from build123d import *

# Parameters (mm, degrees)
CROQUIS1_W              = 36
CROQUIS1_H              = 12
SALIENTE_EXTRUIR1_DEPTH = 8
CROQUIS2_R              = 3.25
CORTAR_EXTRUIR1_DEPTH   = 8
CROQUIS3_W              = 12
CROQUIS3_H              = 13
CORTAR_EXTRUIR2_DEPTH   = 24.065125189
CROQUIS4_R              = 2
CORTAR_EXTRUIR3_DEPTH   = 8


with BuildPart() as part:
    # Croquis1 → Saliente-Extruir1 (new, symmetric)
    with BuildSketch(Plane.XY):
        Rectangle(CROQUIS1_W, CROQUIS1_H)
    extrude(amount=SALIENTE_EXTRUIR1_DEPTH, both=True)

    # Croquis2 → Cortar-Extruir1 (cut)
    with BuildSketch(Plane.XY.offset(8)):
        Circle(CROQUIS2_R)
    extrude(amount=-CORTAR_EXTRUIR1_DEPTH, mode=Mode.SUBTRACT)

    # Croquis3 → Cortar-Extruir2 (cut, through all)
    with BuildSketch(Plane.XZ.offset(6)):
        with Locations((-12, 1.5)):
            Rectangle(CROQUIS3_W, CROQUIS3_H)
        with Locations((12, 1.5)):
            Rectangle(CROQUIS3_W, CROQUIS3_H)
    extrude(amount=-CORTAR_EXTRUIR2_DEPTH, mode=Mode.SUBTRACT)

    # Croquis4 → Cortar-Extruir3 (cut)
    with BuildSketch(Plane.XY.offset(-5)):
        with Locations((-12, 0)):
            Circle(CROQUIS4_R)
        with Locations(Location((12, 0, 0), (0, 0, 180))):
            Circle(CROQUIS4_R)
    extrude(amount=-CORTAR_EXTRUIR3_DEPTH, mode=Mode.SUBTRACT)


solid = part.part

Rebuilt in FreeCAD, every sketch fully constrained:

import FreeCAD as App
import Part
import Sketcher
from FreeCAD import Vector


def add_polygon(sketch, points):
    """Adds a closed chain of lines whose ends are joined by coincident constraints."""
    first, n = sketch.GeometryCount, len(points)
    for a, b in zip(points, points[1:] + points[:1]):
        sketch.addGeometry(Part.LineSegment(App.Vector(*a, 0), App.Vector(*b, 0)), False)
    for i in range(n):
        sketch.addConstraint(Sketcher.Constraint("Coincident", first + i, 2, first + (i + 1) % n, 1))

doc = App.newDocument("Part")
body = doc.addObject("PartDesign::Body", "Body")

# Sketch on XY plane
sketch1 = body.newObject("Sketcher::SketchObject", "Sketch")
sketch1.AttachmentSupport = (doc.getObject("XY_Plane"), [""])
sketch1.MapMode = "FlatFace"
add_polygon(sketch1, [(-18, 6), (-18, -6), (18, -6), (18, 6)])  # lines 0-3
sketch1.addConstraint([
    Sketcher.Constraint("Vertical", 0),
    Sketcher.Constraint("Horizontal", 1),
    Sketcher.Constraint("Vertical", 2),
    Sketcher.Constraint("Horizontal", 3),
    Sketcher.Constraint("Symmetric", 0, 2, 2, 2, -1, 1),
    Sketcher.Constraint("DistanceX", 1, 1, 1, 2, 36.0),
    Sketcher.Constraint("DistanceY", 0, 2, 0, 1, 12.0),
])
pad1 = body.newObject("PartDesign::Pad", "Pad")
pad1.Profile = sketch1
pad1.Length = 16
pad1.Midplane = True

# Sketch on XY plane
sketch2 = body.newObject("Sketcher::SketchObject", "Sketch001")
sketch2.AttachmentSupport = (doc.getObject("XY_Plane"), [""])
sketch2.MapMode = "FlatFace"
sketch2.AttachmentOffset = App.Placement(Vector(0, 0, 8), App.Rotation())
sketch2.addGeometry(Part.Circle(Vector(0, 0, 0), Vector(0, 0, 1), 3.2), False)
sketch2.addConstraint([
    Sketcher.Constraint("Coincident", 0, 3, -1, 1),
    Sketcher.Constraint("Diameter", 0, 6.5),
])
pocket1 = body.newObject("PartDesign::Pocket", "Pocket")
pocket1.Profile = sketch2
pocket1.Length = 8

# Sketch on XZ plane
sketch3 = body.newObject("Sketcher::SketchObject", "Sketch002")
sketch3.AttachmentSupport = (doc.getObject("XZ_Plane"), [""])
sketch3.MapMode = "FlatFace"
sketch3.AttachmentOffset = App.Placement(Vector(0, 0, 6), App.Rotation())
add_polygon(sketch3, [(-18, 8), (-18, -5), (-6, -5), (-6, 8)])  # lines 0-3
add_polygon(sketch3, [(6, 8), (6, -5), (18, -5), (18, 8)])  # lines 4-7
sketch3.addConstraint([
    Sketcher.Constraint("Vertical", 0),
    Sketcher.Constraint("Horizontal", 1),
    Sketcher.Constraint("Vertical", 2),
    Sketcher.Constraint("Horizontal", 3),
    Sketcher.Constraint("Vertical", 4),
    Sketcher.Constraint("Horizontal", 5),
    Sketcher.Constraint("Vertical", 6),
    Sketcher.Constraint("Horizontal", 7),
    Sketcher.Constraint("Symmetric", 1, 2, 4, 2, -2),
    Sketcher.Constraint("Symmetric", 3, 2, 6, 2, -2),
    Sketcher.Constraint("DistanceX", 1, 1, 1, 2, 12.0),
    Sketcher.Constraint("DistanceY", 0, 2, 0, 1, 13.0),
    Sketcher.Constraint("DistanceX", 0, 2, -1, 1, 18.0),
    Sketcher.Constraint("DistanceY", 0, 2, -1, 1, 5.0),
])
pocket2 = body.newObject("PartDesign::Pocket", "Pocket001")
pocket2.Profile = sketch3
pocket2.Type = "ThroughAll"

# Sketch on XY plane
sketch4 = body.newObject("Sketcher::SketchObject", "Sketch003")
sketch4.AttachmentSupport = (doc.getObject("XY_Plane"), [""])
sketch4.MapMode = "FlatFace"
sketch4.AttachmentOffset = App.Placement(Vector(0, 0, -5), App.Rotation())
sketch4.addGeometry([
    Part.Circle(Vector(-12, 0, 0), Vector(0, 0, 1), 2),
    Part.Circle(Vector(12, 0, 0), Vector(0, 0, 1), 2),
], False)
sketch4.addConstraint([
    Sketcher.Constraint("Equal", 0, 1),
    Sketcher.Constraint("Symmetric", 0, 3, 1, 3, -1, 1),
    Sketcher.Constraint("PointOnObject", 0, 3, -1),
    Sketcher.Constraint("Diameter", 0, 4.0),
    Sketcher.Constraint("DistanceX", 0, 3, -1, 1, 12.0),
])
pocket3 = body.newObject("PartDesign::Pocket", "Pocket002")
pocket3.Profile = sketch4
pocket3.Length = 8

doc.recompute()
